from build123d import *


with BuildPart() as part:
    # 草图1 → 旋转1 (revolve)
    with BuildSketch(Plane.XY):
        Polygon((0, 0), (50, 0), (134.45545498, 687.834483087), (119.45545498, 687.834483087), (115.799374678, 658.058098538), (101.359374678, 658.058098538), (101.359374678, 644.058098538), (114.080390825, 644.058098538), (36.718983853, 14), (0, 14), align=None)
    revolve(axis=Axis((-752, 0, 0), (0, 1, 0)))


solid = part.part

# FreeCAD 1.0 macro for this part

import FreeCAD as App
import Part
import Sketcher

V = App.Vector
Q = App.Units.Quantity


def add_polygon(sketch, points):
    """Adds a closed chain of lines whose ends are joined by coincident constraints."""
    first, n = sketch.GeometryCount, len(points)
    for a, b in zip(points, points[1:] + points[:1]):
        sketch.addGeometry(Part.LineSegment(App.Vector(*a, 0), App.Vector(*b, 0)), False)
    for i in range(n):
        sketch.addConstraint(Sketcher.Constraint("Coincident", first + i, 2, first + (i + 1) % n, 1))

doc = App.newDocument("Part")
body = doc.addObject("PartDesign::Body", "Body")

sketch1 = body.newObject("Sketcher::SketchObject", "Sketch")
sketch1.AttachmentSupport = (doc.getObject("XY_Plane"), [""])
sketch1.MapMode = "FlatFace"
add_polygon(sketch1, [(0, 0), (50, 0), (134.455455, 687.834483), (119.455455, 687.834483), (115.799375, 658.058099), (101.359375, 658.058099), (101.359375, 644.058099), (114.080391, 644.058099), (36.718984, 14), (0, 14)])
sketch1.addGeometry(Part.LineSegment(V(-752, 0, 0), V(-752, 687.834483, 0)), True)
sketch1.addConstraint([
    Sketcher.Constraint("Horizontal", 0),
    Sketcher.Constraint("Horizontal", 2),
    Sketcher.Constraint("Horizontal", 4),
    Sketcher.Constraint("Vertical", 5),
    Sketcher.Constraint("Horizontal", 6),
    Sketcher.Constraint("Horizontal", 8),
    Sketcher.Constraint("Vertical", 9),
    Sketcher.Constraint("Vertical", 10),
    Sketcher.Constraint("Coincident", 9, 2, -1, 1),
    Sketcher.Constraint("PointOnObject", 10, 1, -1),
    Sketcher.Constraint("Parallel", 1, 3),
    Sketcher.Constraint("Parallel", 3, 7),
    Sketcher.Constraint("Horizontal", 2, 2, 10, 2),
    Sketcher.Constraint("Equal", 5, 9),
    Sketcher.Constraint("DistanceX", 0, 1, 0, 2, 50.0),
    Sketcher.Constraint("DistanceX", 2, 2, 2, 1, 15.0),
    Sketcher.Constraint("DistanceY", 5, 2, 5, 1, 14.0),
    Sketcher.Constraint("Angle", 1, Q("83 deg")),
    Sketcher.Constraint("Distance", 1, 693.0),
    Sketcher.Constraint("Distance", 3, 30.0),
    Sketcher.Constraint("DistanceX", 10, 1, -1, 1, 752.0),
    Sketcher.Constraint("DistanceX", 4, 2, 4, 1, 14.44),
    Sketcher.Constraint("DistanceX", 6, 1, 6, 2, 12.721016),
])
revolution = body.newObject("PartDesign::Revolution", "Revolution")
revolution.Profile = sketch1
revolution.ReferenceAxis = (sketch1, ["Axis0"])
revolution.Angle = 360

doc.recompute()
